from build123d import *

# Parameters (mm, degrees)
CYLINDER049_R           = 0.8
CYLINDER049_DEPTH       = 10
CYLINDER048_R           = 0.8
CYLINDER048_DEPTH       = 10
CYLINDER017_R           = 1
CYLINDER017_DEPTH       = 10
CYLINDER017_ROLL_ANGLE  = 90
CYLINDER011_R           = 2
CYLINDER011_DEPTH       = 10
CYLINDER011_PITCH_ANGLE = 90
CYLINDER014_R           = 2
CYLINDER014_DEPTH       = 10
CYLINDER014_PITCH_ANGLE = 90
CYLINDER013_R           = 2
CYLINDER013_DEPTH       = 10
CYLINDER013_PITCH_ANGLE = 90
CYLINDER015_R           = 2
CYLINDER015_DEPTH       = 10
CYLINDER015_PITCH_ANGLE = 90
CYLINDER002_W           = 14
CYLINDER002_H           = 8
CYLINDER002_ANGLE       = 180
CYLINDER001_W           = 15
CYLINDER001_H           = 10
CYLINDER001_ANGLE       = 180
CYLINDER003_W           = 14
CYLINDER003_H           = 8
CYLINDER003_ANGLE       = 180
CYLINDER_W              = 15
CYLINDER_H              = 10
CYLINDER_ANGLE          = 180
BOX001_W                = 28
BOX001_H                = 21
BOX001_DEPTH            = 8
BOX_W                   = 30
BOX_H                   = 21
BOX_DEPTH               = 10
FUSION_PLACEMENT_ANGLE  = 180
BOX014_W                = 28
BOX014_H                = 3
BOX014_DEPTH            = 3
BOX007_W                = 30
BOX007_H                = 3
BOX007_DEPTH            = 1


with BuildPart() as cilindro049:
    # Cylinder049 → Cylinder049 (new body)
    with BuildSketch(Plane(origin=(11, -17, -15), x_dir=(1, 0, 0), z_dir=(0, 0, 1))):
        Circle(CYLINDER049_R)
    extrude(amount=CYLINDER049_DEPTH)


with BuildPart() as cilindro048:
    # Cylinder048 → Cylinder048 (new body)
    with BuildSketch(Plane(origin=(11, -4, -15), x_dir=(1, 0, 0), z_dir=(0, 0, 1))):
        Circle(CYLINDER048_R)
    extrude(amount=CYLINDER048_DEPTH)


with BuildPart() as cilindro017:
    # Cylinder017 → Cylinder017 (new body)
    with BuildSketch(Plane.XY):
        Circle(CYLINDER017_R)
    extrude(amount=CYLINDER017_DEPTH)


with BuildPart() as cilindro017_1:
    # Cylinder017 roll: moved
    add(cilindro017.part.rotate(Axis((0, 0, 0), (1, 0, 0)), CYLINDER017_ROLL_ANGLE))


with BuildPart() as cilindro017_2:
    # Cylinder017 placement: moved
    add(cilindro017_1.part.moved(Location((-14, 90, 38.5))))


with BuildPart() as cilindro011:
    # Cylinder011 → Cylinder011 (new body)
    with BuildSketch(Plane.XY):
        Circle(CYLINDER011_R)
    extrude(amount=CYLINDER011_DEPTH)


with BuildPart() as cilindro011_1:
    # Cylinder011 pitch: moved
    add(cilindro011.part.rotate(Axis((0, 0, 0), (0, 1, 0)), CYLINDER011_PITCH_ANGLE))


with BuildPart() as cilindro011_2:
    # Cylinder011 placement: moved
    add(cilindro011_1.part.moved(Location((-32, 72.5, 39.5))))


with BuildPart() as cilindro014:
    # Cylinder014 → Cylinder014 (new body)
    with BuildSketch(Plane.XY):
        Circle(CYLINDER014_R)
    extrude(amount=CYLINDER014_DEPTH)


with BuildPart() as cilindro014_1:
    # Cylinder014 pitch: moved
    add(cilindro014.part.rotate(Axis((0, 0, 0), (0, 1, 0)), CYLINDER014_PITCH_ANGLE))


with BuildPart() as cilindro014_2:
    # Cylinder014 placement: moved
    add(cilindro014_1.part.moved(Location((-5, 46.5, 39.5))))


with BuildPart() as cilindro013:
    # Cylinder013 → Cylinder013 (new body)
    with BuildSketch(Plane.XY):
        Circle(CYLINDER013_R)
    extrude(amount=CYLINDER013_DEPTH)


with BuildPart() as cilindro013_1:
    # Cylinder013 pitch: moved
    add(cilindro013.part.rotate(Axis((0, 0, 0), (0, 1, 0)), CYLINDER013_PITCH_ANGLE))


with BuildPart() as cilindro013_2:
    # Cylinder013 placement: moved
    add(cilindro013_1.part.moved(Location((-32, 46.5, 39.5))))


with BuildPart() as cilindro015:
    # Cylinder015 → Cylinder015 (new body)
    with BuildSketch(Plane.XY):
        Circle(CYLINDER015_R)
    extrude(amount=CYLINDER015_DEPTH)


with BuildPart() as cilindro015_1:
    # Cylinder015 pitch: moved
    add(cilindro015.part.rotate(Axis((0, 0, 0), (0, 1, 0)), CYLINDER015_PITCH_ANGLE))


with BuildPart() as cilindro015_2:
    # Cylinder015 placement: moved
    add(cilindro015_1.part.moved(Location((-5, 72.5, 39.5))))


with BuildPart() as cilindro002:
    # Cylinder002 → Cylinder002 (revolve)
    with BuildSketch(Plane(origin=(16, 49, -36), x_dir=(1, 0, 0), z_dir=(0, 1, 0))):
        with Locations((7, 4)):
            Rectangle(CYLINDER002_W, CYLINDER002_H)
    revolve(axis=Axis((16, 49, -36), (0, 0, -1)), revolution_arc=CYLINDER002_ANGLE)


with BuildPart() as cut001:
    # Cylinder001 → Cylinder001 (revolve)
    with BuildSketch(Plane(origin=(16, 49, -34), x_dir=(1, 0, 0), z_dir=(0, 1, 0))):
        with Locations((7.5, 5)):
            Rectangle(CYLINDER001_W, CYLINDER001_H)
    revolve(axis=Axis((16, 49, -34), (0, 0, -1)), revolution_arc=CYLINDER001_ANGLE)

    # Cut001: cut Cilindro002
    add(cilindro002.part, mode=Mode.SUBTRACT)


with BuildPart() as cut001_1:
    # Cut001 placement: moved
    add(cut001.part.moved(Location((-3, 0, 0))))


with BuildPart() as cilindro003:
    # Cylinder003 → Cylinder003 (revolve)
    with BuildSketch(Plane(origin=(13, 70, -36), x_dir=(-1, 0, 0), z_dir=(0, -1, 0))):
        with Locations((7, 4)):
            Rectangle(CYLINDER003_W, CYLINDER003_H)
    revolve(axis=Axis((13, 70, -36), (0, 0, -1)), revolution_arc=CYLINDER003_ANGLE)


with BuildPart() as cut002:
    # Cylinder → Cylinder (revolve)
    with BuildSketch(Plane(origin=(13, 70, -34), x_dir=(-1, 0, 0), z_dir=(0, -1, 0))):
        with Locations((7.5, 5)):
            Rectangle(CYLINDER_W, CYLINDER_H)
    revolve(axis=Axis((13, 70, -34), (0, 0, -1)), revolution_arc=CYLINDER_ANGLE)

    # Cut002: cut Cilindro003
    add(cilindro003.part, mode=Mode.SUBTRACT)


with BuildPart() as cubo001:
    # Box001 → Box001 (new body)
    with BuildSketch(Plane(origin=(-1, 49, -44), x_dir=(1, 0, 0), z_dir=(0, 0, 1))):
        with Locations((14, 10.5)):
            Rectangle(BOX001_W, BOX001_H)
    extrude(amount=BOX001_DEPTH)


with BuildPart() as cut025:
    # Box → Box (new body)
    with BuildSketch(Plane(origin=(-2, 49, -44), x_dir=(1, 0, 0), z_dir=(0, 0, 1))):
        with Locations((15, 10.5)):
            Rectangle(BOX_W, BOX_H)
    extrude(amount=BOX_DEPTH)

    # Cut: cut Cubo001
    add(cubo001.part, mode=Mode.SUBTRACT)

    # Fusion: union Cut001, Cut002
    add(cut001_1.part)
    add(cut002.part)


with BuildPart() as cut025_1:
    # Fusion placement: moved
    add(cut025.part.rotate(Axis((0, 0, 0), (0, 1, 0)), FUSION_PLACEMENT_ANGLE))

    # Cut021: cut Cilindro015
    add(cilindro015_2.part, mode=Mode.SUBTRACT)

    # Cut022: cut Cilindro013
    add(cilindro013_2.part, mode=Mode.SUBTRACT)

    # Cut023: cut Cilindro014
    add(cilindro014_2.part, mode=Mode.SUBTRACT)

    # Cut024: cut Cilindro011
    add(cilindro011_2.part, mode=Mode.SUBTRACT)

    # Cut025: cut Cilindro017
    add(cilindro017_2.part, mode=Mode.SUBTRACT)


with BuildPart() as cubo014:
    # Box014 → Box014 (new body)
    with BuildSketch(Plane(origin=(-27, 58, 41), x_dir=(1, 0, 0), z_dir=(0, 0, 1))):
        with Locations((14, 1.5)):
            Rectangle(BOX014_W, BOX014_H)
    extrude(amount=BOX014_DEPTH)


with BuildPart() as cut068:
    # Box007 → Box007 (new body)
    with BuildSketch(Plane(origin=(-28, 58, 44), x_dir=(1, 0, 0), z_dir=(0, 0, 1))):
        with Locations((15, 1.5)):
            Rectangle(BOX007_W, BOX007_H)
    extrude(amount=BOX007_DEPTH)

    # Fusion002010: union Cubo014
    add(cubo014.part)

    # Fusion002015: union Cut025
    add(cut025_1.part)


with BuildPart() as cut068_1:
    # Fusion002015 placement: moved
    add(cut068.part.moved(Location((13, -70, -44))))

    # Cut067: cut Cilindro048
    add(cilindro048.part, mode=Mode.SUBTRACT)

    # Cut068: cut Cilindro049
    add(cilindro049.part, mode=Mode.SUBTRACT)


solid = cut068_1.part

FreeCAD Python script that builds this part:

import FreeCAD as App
import Part
import Sketcher

V = App.Vector
Q = App.Units.Quantity


def add_polygon(sketch, points):
    """Adds a closed chain of lines whose ends are joined by coincident constraints."""
    first, n = sketch.GeometryCount, len(points)
    for a, b in zip(points, points[1:] + points[:1]):
        sketch.addGeometry(Part.LineSegment(App.Vector(*a, 0), App.Vector(*b, 0)), False)
    for i in range(n):
        sketch.addConstraint(Sketcher.Constraint("Coincident", first + i, 2, first + (i + 1) % n, 1))

doc = App.newDocument("Part")
body = doc.addObject("PartDesign::Body", "Body")

sketch1 = body.newObject("Sketcher::SketchObject", "Sketch")
sketch1.AttachmentSupport = (doc.getObject("XY_Plane"), [""])
sketch1.MapMode = "FlatFace"
sketch1.AttachmentOffset = App.Placement(V(0, 0, -15), App.Rotation())
sketch1.addGeometry(Part.Circle(V(11, -17, 0), V(0, 0, 1), 0.8), False)
sketch1.addConstraint([
    Sketcher.Constraint("Diameter", 0, Q("1.6 mm")),
    Sketcher.Constraint("DistanceX", -1, 1, 0, 3, Q("11 mm")),
    Sketcher.Constraint("DistanceY", 0, 3, -1, 1, Q("17 mm")),
])
pad1 = body.newObject("PartDesign::Pad", "Pad")
pad1.Profile = sketch1
pad1.Length = 10
body2 = doc.addObject("PartDesign::Body", "Body001")

sketch2 = body2.newObject("Sketcher::SketchObject", "Sketch001")
sketch2.AttachmentSupport = (doc.getObject("XY_Plane001"), [""])
sketch2.MapMode = "FlatFace"
sketch2.AttachmentOffset = App.Placement(V(0, 0, -15), App.Rotation())
sketch2.addGeometry(Part.Circle(V(11, -4, 0), V(0, 0, 1), 0.8), False)
sketch2.addConstraint([
    Sketcher.Constraint("Diameter", 0, Q("1.6 mm")),
    Sketcher.Constraint("DistanceX", -1, 1, 0, 3, Q("11 mm")),
    Sketcher.Constraint("DistanceY", 0, 3, -1, 1, Q("4 mm")),
])
pad2 = body2.newObject("PartDesign::Pad", "Pad001")
pad2.Profile = sketch2
pad2.Length = 10
body3 = doc.addObject("PartDesign::Body", "Body002")

sketch3 = body3.newObject("Sketcher::SketchObject", "Sketch002")
sketch3.AttachmentSupport = (doc.getObject("XY_Plane002"), [""])
sketch3.MapMode = "FlatFace"
sketch3.addGeometry(Part.Circle(V(0, 0, 0), V(0, 0, 1), 1), False)
sketch3.addConstraint([
    Sketcher.Constraint("Coincident", 0, 3, -1, 1),
    Sketcher.Constraint("Diameter", 0, Q("2 mm")),
])
pad3 = body3.newObject("PartDesign::Pad", "Pad002")
pad3.Profile = sketch3
pad3.Length = 10
body4 = doc.addObject("PartDesign::Body", "Body003")
doc.recompute()

body3.Placement = App.Placement(V(0, 0, 0), App.Rotation(V(1, 0, 0), 90))
boolean = body4.newObject("PartDesign::Boolean", "Boolean")
boolean.Type = "Fuse"
boolean.addObjects([body3])
body5 = doc.addObject("PartDesign::Body", "Body004")
doc.recompute()

body4.Placement = App.Placement(V(-14, 90, 38.5), App.Rotation(V(0, 0, 1), 0))
boolean2 = body5.newObject("PartDesign::Boolean", "Boolean001")
boolean2.Type = "Fuse"
boolean2.addObjects([body4])
body6 = doc.addObject("PartDesign::Body", "Body005")

sketch4 = body6.newObject("Sketcher::SketchObject", "Sketch003")
sketch4.AttachmentSupport = (doc.getObject("XY_Plane005"), [""])
sketch4.MapMode = "FlatFace"
sketch4.addGeometry(Part.Circle(V(0, 0, 0), V(0, 0, 1), 2), False)
sketch4.addConstraint([
    Sketcher.Constraint("Coincident", 0, 3, -1, 1),
    Sketcher.Constraint("Diameter", 0, Q("4 mm")),
])
pad4 = body6.newObject("PartDesign::Pad", "Pad003")
pad4.Profile = sketch4
pad4.Length = 10
body7 = doc.addObject("PartDesign::Body", "Body006")
doc.recompute()

body6.Placement = App.Placement(V(0, 0, 0), App.Rotation(V(0, 1, 0), 90))
boolean3 = body7.newObject("PartDesign::Boolean", "Boolean002")
boolean3.Type = "Fuse"
boolean3.addObjects([body6])
body8 = doc.addObject("PartDesign::Body", "Body007")
doc.recompute()

body7.Placement = App.Placement(V(-32, 72.5, 39.5), App.Rotation(V(0, 0, 1), 0))
boolean4 = body8.newObject("PartDesign::Boolean", "Boolean003")
boolean4.Type = "Fuse"
boolean4.addObjects([body7])
body9 = doc.addObject("PartDesign::Body", "Body008")

sketch5 = body9.newObject("Sketcher::SketchObject", "Sketch004")
sketch5.AttachmentSupport = (doc.getObject("XY_Plane008"), [""])
sketch5.MapMode = "FlatFace"
sketch5.addGeometry(Part.Circle(V(0, 0, 0), V(0, 0, 1), 2), False)
sketch5.addConstraint([
    Sketcher.Constraint("Coincident", 0, 3, -1, 1),
    Sketcher.Constraint("Diameter", 0, Q("4 mm")),
])
pad5 = body9.newObject("PartDesign::Pad", "Pad004")
pad5.Profile = sketch5
pad5.Length = 10
body10 = doc.addObject("PartDesign::Body", "Body009")
doc.recompute()

body9.Placement = App.Placement(V(0, 0, 0), App.Rotation(V(0, 1, 0), 90))
boolean5 = body10.newObject("PartDesign::Boolean", "Boolean004")
boolean5.Type = "Fuse"
boolean5.addObjects([body9])
body11 = doc.addObject("PartDesign::Body", "Body010")
doc.recompute()

body10.Placement = App.Placement(V(-5, 46.5, 39.5), App.Rotation(V(0, 0, 1), 0))
boolean6 = body11.newObject("PartDesign::Boolean", "Boolean005")
boolean6.Type = "Fuse"
boolean6.addObjects([body10])
body12 = doc.addObject("PartDesign::Body", "Body011")

sketch6 = body12.newObject("Sketcher::SketchObject", "Sketch005")
sketch6.AttachmentSupport = (doc.getObject("XY_Plane011"), [""])
sketch6.MapMode = "FlatFace"
sketch6.addGeometry(Part.Circle(V(0, 0, 0), V(0, 0, 1), 2), False)
sketch6.addConstraint([
    Sketcher.Constraint("Coincident", 0, 3, -1, 1),
    Sketcher.Constraint("Diameter", 0, Q("4 mm")),
])
pad6 = body12.newObject("PartDesign::Pad", "Pad005")
pad6.Profile = sketch6
pad6.Length = 10
body13 = doc.addObject("PartDesign::Body", "Body012")
doc.recompute()

body12.Placement = App.Placement(V(0, 0, 0), App.Rotation(V(0, 1, 0), 90))
boolean7 = body13.newObject("PartDesign::Boolean", "Boolean006")
boolean7.Type = "Fuse"
boolean7.addObjects([body12])
body14 = doc.addObject("PartDesign::Body", "Body013")
doc.recompute()

body13.Placement = App.Placement(V(-32, 46.5, 39.5), App.Rotation(V(0, 0, 1), 0))
boolean8 = body14.newObject("PartDesign::Boolean", "Boolean007")
boolean8.Type = "Fuse"
boolean8.addObjects([body13])
body15 = doc.addObject("PartDesign::Body", "Body014")

sketch7 = body15.newObject("Sketcher::SketchObject", "Sketch006")
sketch7.AttachmentSupport = (doc.getObject("XY_Plane014"), [""])
sketch7.MapMode = "FlatFace"
sketch7.addGeometry(Part.Circle(V(0, 0, 0), V(0, 0, 1), 2), False)
sketch7.addConstraint([
    Sketcher.Constraint("Coincident", 0, 3, -1, 1),
    Sketcher.Constraint("Diameter", 0, Q("4 mm")),
])
pad7 = body15.newObject("PartDesign::Pad", "Pad006")
pad7.Profile = sketch7
pad7.Length = 10
body16 = doc.addObject("PartDesign::Body", "Body015")
doc.recompute()

body15.Placement = App.Placement(V(0, 0, 0), App.Rotation(V(0, 1, 0), 90))
boolean9 = body16.newObject("PartDesign::Boolean", "Boolean008")
boolean9.Type = "Fuse"
boolean9.addObjects([body15])
body17 = doc.addObject("PartDesign::Body", "Body016")
doc.recompute()

body16.Placement = App.Placement(V(-5, 72.5, 39.5), App.Rotation(V(0, 0, 1), 0))
boolean10 = body17.newObject("PartDesign::Boolean", "Boolean009")
boolean10.Type = "Fuse"
boolean10.addObjects([body16])
body18 = doc.addObject("PartDesign::Body", "Body017")

sketch8 = body18.newObject("Sketcher::SketchObject", "Sketch007")
sketch8.AttachmentSupport = (doc.getObject("XZ_Plane017"), [""])
sketch8.MapMode = "FlatFace"
sketch8.AttachmentOffset = App.Placement(V(0, 0, -49), App.Rotation())
add_polygon(sketch8, [(16, -44), (16, -36), (30, -36), (30, -44)])
sketch8.addGeometry(Part.LineSegment(V(16, -36, 0), V(16, -44, 0)), True)
sketch8.addConstraint([
    Sketcher.Constraint("Vertical", 0),
    Sketcher.Constraint("Horizontal", 1),
    Sketcher.Constraint("Vertical", 2),
    Sketcher.Constraint("Horizontal", 3),
    Sketcher.Constraint("Vertical", 4),
    Sketcher.Constraint("Coincident", 4, 1, 0, 2),
    Sketcher.Constraint("Horizontal", 2, 2, 4, 2),
    Sketcher.Constraint("DistanceX", 1, 1, 1, 2, Q("14 mm")),
    Sketcher.Constraint("DistanceY", 0, 1, 0, 2, Q("8 mm")),
    Sketcher.Constraint("DistanceX", -1, 1, 0, 2, Q("16 mm")),
    Sketcher.Constraint("DistanceY", 0, 2, -1, 1, Q("36 mm")),
])
revolution = body18.newObject("PartDesign::Revolution", "Revolution")
revolution.Profile = sketch8
revolution.ReferenceAxis = (sketch8, ["Axis0"])
revolution.Angle = 180
body19 = doc.addObject("PartDesign::Body", "Body018")

sketch9 = body19.newObject("Sketcher::SketchObject", "Sketch008")
sketch9.AttachmentSupport = (doc.getObject("XZ_Plane018"), [""])
sketch9.MapMode = "FlatFace"
sketch9.AttachmentOffset = App.Placement(V(0, 0, -49), App.Rotation())
add_polygon(sketch9, [(16, -44), (16, -34), (31, -34), (31, -44)])
sketch9.addGeometry(Part.LineSegment(V(16, -34, 0), V(16, -44, 0)), True)
sketch9.addConstraint([
    Sketcher.Constraint("Vertical", 0),
    Sketcher.Constraint("Horizontal", 1),
    Sketcher.Constraint("Vertical", 2),
    Sketcher.Constraint("Horizontal", 3),
    Sketcher.Constraint("Vertical", 4),
    Sketcher.Constraint("Coincident", 4, 1, 0, 2),
    Sketcher.Constraint("Horizontal", 2, 2, 4, 2),
    Sketcher.Constraint("DistanceX", 1, 1, 1, 2, Q("15 mm")),
    Sketcher.Constraint("DistanceY", 0, 1, 0, 2, Q("10 mm")),
    Sketcher.Constraint("DistanceX", -1, 1, 0, 2, Q("16 mm")),
    Sketcher.Constraint("DistanceY", 0, 2, -1, 1, Q("34 mm")),
])
revolution2 = body19.newObject("PartDesign::Revolution", "Revolution001")
revolution2.Profile = sketch9
revolution2.ReferenceAxis = (sketch9, ["Axis0"])
revolution2.Angle = 180
doc.recompute()

boolean11 = body19.newObject("PartDesign::Boolean", "Boolean010")
boolean11.Type = "Cut"
boolean11.addObjects([body18])
body20 = doc.addObject("PartDesign::Body", "Body019")
doc.recompute()

body19.Placement = App.Placement(V(-3, 0, 0), App.Rotation(V(0, 0, 1), 0))
boolean12 = body20.newObject("PartDesign::Boolean", "Boolean011")
boolean12.Type = "Fuse"
boolean12.addObjects([body19])
body21 = doc.addObject("PartDesign::Body", "Body020")

sketch10 = body21.newObject("Sketcher::SketchObject", "Sketch009")
sketch10.AttachmentSupport = (doc.getObject("XZ_Plane020"), [""])
sketch10.MapMode = "FlatFace"
sketch10.AttachmentOffset = App.Placement(V(0, 0, -70), App.Rotation())
add_polygon(sketch10, [(13, -44), (13, -36), (-1, -36), (-1, -44)])
sketch10.addGeometry(Part.LineSegment(V(13, -36, 0), V(13, -44, 0)), True)
sketch10.addConstraint([
    Sketcher.Constraint("Vertical", 0),
    Sketcher.Constraint("Horizontal", 1),
    Sketcher.Constraint("Vertical", 2),
    Sketcher.Constraint("Horizontal", 3),
    Sketcher.Constraint("Vertical", 4),
    Sketcher.Constraint("Coincident", 4, 1, 0, 2),
    Sketcher.Constraint("Horizontal", 2, 2, 4, 2),
    Sketcher.Constraint("DistanceX", 1, 2, 1, 1, Q("14 mm")),
    Sketcher.Constraint("DistanceY", 0, 1, 0, 2, Q("8 mm")),
    Sketcher.Constraint("DistanceX", -1, 1, 0, 2, Q("13 mm")),
    Sketcher.Constraint("DistanceY", 0, 2, -1, 1, Q("36 mm")),
])
revolution3 = body21.newObject("PartDesign::Revolution", "Revolution002")
revolution3.Profile = sketch10
revolution3.ReferenceAxis = (sketch10, ["Axis0"])
revolution3.Angle = 180
body22 = doc.addObject("PartDesign::Body", "Body021")

sketch11 = body22.newObject("Sketcher::SketchObject", "Sketch010")
sketch11.AttachmentSupport = (doc.getObject("XZ_Plane021"), [""])
sketch11.MapMode = "FlatFace"
sketch11.AttachmentOffset = App.Placement(V(0, 0, -70), App.Rotation())
add_polygon(sketch11, [(13, -44), (13, -34), (-2, -34), (-2, -44)])
sketch11.addGeometry(Part.LineSegment(V(13, -34, 0), V(13, -44, 0)), True)
sketch11.addConstraint([
    Sketcher.Constraint("Vertical", 0),
    Sketcher.Constraint("Horizontal", 1),
    Sketcher.Constraint("Vertical", 2),
    Sketcher.Constraint("Horizontal", 3),
    Sketcher.Constraint("Vertical", 4),
    Sketcher.Constraint("Coincident", 4, 1, 0, 2),
    Sketcher.Constraint("Horizontal", 2, 2, 4, 2),
    Sketcher.Constraint("DistanceX", 1, 2, 1, 1, Q("15 mm")),
    Sketcher.Constraint("DistanceY", 0, 1, 0, 2, Q("10 mm")),
    Sketcher.Constraint("DistanceX", -1, 1, 0, 2, Q("13 mm")),
    Sketcher.Constraint("DistanceY", 0, 2, -1, 1, Q("34 mm")),
])
revolution4 = body22.newObject("PartDesign::Revolution", "Revolution003")
revolution4.Profile = sketch11
revolution4.ReferenceAxis = (sketch11, ["Axis0"])
revolution4.Angle = 180
doc.recompute()

boolean13 = body22.newObject("PartDesign::Boolean", "Boolean012")
boolean13.Type = "Cut"
boolean13.addObjects([body21])
body23 = doc.addObject("PartDesign::Body", "Body022")

sketch12 = body23.newObject("Sketcher::SketchObject", "Sketch011")
sketch12.AttachmentSupport = (doc.getObject("XY_Plane022"), [""])
sketch12.MapMode = "FlatFace"
sketch12.AttachmentOffset = App.Placement(V(0, 0, -44), App.Rotation())
add_polygon(sketch12, [(-1, 70), (-1, 49), (27, 49), (27, 70)])
sketch12.addConstraint([
    Sketcher.Constraint("Vertical", 0),
    Sketcher.Constraint("Horizontal", 1),
    Sketcher.Constraint("Vertical", 2),
    Sketcher.Constraint("Horizontal", 3),
    Sketcher.Constraint("DistanceX", 1, 1, 1, 2, Q("28 mm")),
    Sketcher.Constraint("DistanceY", 0, 2, 0, 1, Q("21 mm")),
    Sketcher.Constraint("DistanceX", 0, 2, -1, 1, Q("1 mm")),
    Sketcher.Constraint("DistanceY", -1, 1, 0, 2, Q("49 mm")),
])
pad8 = body23.newObject("PartDesign::Pad", "Pad007")
pad8.Profile = sketch12
pad8.Length = 8
body24 = doc.addObject("PartDesign::Body", "Body023")

sketch13 = body24.newObject("Sketcher::SketchObject", "Sketch012")
sketch13.AttachmentSupport = (doc.getObject("XY_Plane023"), [""])
sketch13.MapMode = "FlatFace"
sketch13.AttachmentOffset = App.Placement(V(0, 0, -44), App.Rotation())
add_polygon(sketch13, [(-2, 70), (-2, 49), (28, 49), (28, 70)])
sketch13.addConstraint([
    Sketcher.Constraint("Vertical", 0),
    Sketcher.Constraint("Horizontal", 1),
    Sketcher.Constraint("Vertical", 2),
    Sketcher.Constraint("Horizontal", 3),
    Sketcher.Constraint("DistanceX", 1, 1, 1, 2, Q("30 mm")),
    Sketcher.Constraint("DistanceY", 0, 2, 0, 1, Q("21 mm")),
    Sketcher.Constraint("DistanceX", 0, 2, -1, 1, Q("2 mm")),
    Sketcher.Constraint("DistanceY", -1, 1, 0, 2, Q("49 mm")),
])
pad9 = body24.newObject("PartDesign::Pad", "Pad008")
pad9.Profile = sketch13
pad9.Length = 10
doc.recompute()

boolean14 = body24.newObject("PartDesign::Boolean", "Boolean013")
boolean14.Type = "Cut"
boolean14.addObjects([body23])
doc.recompute()

boolean15 = body24.newObject("PartDesign::Boolean", "Boolean014")
boolean15.Type = "Fuse"
boolean15.addObjects([body20])
doc.recompute()

boolean16 = body24.newObject("PartDesign::Boolean", "Boolean015")
boolean16.Type = "Fuse"
boolean16.addObjects([body22])
body25 = doc.addObject("PartDesign::Body", "Body024")
doc.recompute()

body24.Placement = App.Placement(V(0, 0, 0), App.Rotation(V(0, 1, 0), 180))
boolean17 = body25.newObject("PartDesign::Boolean", "Boolean016")
boolean17.Type = "Fuse"
boolean17.addObjects([body24])
doc.recompute()

boolean18 = body25.newObject("PartDesign::Boolean", "Boolean017")
boolean18.Type = "Cut"
boolean18.addObjects([body17])
doc.recompute()

boolean19 = body25.newObject("PartDesign::Boolean", "Boolean018")
boolean19.Type = "Cut"
boolean19.addObjects([body14])
doc.recompute()

boolean20 = body25.newObject("PartDesign::Boolean", "Boolean019")
boolean20.Type = "Cut"
boolean20.addObjects([body11])
doc.recompute()

boolean21 = body25.newObject("PartDesign::Boolean", "Boolean020")
boolean21.Type = "Cut"
boolean21.addObjects([body8])
doc.recompute()

boolean22 = body25.newObject("PartDesign::Boolean", "Boolean021")
boolean22.Type = "Cut"
boolean22.addObjects([body5])
body26 = doc.addObject("PartDesign::Body", "Body025")

sketch14 = body26.newObject("Sketcher::SketchObject", "Sketch013")
sketch14.AttachmentSupport = (doc.getObject("XY_Plane025"), [""])
sketch14.MapMode = "FlatFace"
sketch14.AttachmentOffset = App.Placement(V(0, 0, 41), App.Rotation())
add_polygon(sketch14, [(-27, 61), (-27, 58), (1, 58), (1, 61)])
sketch14.addConstraint([
    Sketcher.Constraint("Vertical", 0),
    Sketcher.Constraint("Horizontal", 1),
    Sketcher.Constraint("Vertical", 2),
    Sketcher.Constraint("Horizontal", 3),
    Sketcher.Constraint("DistanceX", 1, 1, 1, 2, Q("28 mm")),
    Sketcher.Constraint("DistanceY", 0, 2, 0, 1, Q("3 mm")),
    Sketcher.Constraint("DistanceX", 0, 2, -1, 1, Q("27 mm")),
    Sketcher.Constraint("DistanceY", -1, 1, 0, 2, Q("58 mm")),
])
pad10 = body26.newObject("PartDesign::Pad", "Pad009")
pad10.Profile = sketch14
pad10.Length = 3
body27 = doc.addObject("PartDesign::Body", "Body026")

sketch15 = body27.newObject("Sketcher::SketchObject", "Sketch014")
sketch15.AttachmentSupport = (doc.getObject("XY_Plane026"), [""])
sketch15.MapMode = "FlatFace"
sketch15.AttachmentOffset = App.Placement(V(0, 0, 44), App.Rotation())
add_polygon(sketch15, [(-28, 61), (-28, 58), (2, 58), (2, 61)])
sketch15.addConstraint([
    Sketcher.Constraint("Vertical", 0),
    Sketcher.Constraint("Horizontal", 1),
    Sketcher.Constraint("Vertical", 2),
    Sketcher.Constraint("Horizontal", 3),
    Sketcher.Constraint("DistanceX", 1, 1, 1, 2, Q("30 mm")),
    Sketcher.Constraint("DistanceY", 0, 2, 0, 1, Q("3 mm")),
    Sketcher.Constraint("DistanceX", 0, 2, -1, 1, Q("28 mm")),
    Sketcher.Constraint("DistanceY", -1, 1, 0, 2, Q("58 mm")),
])
pad11 = body27.newObject("PartDesign::Pad", "Pad010")
pad11.Profile = sketch15
pad11.Length = 1
doc.recompute()

boolean23 = body27.newObject("PartDesign::Boolean", "Boolean022")
boolean23.Type = "Fuse"
boolean23.addObjects([body26])
doc.recompute()

boolean24 = body27.newObject("PartDesign::Boolean", "Boolean023")
boolean24.Type = "Fuse"
boolean24.addObjects([body25])
body28 = doc.addObject("PartDesign::Body", "Body027")
doc.recompute()

body27.Placement = App.Placement(V(13, -70, -44), App.Rotation(V(0, 0, 1), 0))
boolean25 = body28.newObject("PartDesign::Boolean", "Boolean024")
boolean25.Type = "Fuse"
boolean25.addObjects([body27])
doc.recompute()

boolean26 = body28.newObject("PartDesign::Boolean", "Boolean025")
boolean26.Type = "Cut"
boolean26.addObjects([body2])
doc.recompute()

boolean27 = body28.newObject("PartDesign::Boolean", "Boolean026")
boolean27.Type = "Cut"
boolean27.addObjects([body])

doc.recompute()
